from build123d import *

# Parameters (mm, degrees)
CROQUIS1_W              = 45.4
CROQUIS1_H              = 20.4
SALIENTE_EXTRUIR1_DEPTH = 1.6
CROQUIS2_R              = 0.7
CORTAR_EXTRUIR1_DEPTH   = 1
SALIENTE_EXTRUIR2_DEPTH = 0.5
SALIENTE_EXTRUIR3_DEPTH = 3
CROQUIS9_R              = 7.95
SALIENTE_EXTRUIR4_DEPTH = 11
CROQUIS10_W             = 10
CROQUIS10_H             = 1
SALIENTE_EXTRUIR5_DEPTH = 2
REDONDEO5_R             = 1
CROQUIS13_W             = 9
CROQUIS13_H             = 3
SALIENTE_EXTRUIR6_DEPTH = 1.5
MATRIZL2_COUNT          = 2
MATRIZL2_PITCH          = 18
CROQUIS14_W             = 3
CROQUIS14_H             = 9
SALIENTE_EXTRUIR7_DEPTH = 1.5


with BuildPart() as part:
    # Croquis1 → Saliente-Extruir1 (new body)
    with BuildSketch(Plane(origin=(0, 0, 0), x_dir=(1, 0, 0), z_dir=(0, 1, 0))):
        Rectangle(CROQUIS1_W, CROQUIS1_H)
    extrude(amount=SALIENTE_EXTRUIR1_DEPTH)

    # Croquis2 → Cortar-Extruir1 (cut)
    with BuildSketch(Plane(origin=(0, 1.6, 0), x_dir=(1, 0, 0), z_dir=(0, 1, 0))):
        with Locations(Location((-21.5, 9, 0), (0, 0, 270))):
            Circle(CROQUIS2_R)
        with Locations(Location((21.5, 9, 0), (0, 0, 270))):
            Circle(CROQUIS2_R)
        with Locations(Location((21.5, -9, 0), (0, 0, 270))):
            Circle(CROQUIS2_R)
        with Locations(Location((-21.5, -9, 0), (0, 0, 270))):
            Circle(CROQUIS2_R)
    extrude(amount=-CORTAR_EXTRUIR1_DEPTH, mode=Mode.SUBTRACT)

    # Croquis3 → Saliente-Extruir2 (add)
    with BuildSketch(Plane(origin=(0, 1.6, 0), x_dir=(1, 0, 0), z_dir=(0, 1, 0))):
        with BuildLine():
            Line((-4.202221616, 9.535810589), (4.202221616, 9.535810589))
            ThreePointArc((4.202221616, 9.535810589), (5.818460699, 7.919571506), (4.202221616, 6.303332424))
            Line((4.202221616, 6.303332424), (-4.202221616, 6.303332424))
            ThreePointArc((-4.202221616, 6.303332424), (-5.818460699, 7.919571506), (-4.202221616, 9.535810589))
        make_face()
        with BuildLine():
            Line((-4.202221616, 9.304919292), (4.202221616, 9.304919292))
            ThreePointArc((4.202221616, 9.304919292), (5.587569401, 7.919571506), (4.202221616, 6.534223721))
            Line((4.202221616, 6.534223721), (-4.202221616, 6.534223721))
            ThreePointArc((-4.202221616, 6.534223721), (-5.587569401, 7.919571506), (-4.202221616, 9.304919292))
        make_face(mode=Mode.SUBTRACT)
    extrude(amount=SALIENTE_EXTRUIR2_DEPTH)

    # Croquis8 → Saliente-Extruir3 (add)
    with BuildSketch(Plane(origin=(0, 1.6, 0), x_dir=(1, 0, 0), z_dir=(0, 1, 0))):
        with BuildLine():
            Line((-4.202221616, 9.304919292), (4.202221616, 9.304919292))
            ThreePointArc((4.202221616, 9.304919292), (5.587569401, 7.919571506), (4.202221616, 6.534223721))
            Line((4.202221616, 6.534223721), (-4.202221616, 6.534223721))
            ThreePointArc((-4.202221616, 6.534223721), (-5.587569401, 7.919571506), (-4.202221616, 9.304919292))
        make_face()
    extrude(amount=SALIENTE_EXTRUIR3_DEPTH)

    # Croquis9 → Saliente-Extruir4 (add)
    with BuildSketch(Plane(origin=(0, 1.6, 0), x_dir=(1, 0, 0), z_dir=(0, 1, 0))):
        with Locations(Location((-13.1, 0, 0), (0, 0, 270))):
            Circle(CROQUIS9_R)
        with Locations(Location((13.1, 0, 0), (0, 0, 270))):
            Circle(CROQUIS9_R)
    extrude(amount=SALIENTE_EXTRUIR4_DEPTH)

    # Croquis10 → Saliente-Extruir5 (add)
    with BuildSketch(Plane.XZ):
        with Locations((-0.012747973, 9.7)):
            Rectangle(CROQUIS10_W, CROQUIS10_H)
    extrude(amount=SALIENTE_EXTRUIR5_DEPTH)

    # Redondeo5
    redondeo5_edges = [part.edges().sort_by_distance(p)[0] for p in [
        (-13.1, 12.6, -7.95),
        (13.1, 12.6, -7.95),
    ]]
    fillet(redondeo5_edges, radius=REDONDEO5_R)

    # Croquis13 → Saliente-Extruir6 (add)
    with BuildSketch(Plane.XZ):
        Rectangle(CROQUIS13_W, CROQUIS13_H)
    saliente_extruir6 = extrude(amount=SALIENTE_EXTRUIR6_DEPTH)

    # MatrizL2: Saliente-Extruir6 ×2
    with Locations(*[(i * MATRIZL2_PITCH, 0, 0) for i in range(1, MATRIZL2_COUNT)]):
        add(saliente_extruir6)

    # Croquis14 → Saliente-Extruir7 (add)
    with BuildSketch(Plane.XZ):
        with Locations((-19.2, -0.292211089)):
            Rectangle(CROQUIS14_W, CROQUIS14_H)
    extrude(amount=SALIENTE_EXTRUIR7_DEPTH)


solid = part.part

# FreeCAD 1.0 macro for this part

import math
import FreeCAD as App
import Part
import Sketcher
from FreeCAD import Vector
Q = App.Units.Quantity


def edges_at(feature, points):
    """Names of the edges that pass closest to the given points."""
    edges = feature.Shape.Edges
    near = lambda p: min(range(len(edges)), key=lambda i: edges[i].distToShape(Part.Vertex(*p))[0])
    return sorted({f"Edge{near(p) + 1}" for p in points})


def add_polygon(sketch, points):
    """Adds a closed chain of lines whose ends are joined by coincident constraints."""
    first, n = sketch.GeometryCount, len(points)
    for a, b in zip(points, points[1:] + points[:1]):
        sketch.addGeometry(Part.LineSegment(App.Vector(*a, 0), App.Vector(*b, 0)), False)
    for i in range(n):
        sketch.addConstraint(Sketcher.Constraint("Coincident", first + i, 2, first + (i + 1) % n, 1))

doc = App.newDocument("Part")
params = doc.addObject("Spreadsheet::Sheet", "Params")
for row, (alias, value) in enumerate([
    ("sketch1_width", "45.4 mm"),
    ("sketch1_height", "20.4 mm"),
    ("pad1_length", "1.6 mm"),
    ("sketch2_diameter", "1.4 mm"),
    ("pocket1_length", "1 mm"),
    ("pad2_length", "0.5 mm"),
    ("pad3_length", "3 mm"),
    ("sketch5_diameter", "15.9 mm"),
    ("pad4_length", "11 mm"),
    ("sketch6_width", "10 mm"),
    ("sketch6_height", "1 mm"),
    ("pad5_length", "2 mm"),
    ("fillet_radius", "1 mm"),
    ("sketch7_width", "9 mm"),
    ("sketch7_height", "3 mm"),
    ("pad6_length", "1.5 mm"),
    ("linearpattern_pitch", "18 mm"),
    ("sketch8_width", "3 mm"),
    ("sketch8_height", "9 mm"),
    ("pad7_length", "1.5 mm"),
], start=1):
    params.set(f"A{row}", alias)
    params.set(f"B{row}", "=" + value)
    params.setAlias(f"B{row}", alias)

body = doc.addObject("PartDesign::Body", "Body")

# Sketch on XZ plane
sketch1 = body.newObject("Sketcher::SketchObject", "Sketch")
sketch1.AttachmentSupport = (doc.getObject("XZ_Plane"), [""])
sketch1.MapMode = "FlatFace"
add_polygon(sketch1, [(-23, -10), (-23, 10), (23, 10), (23, -10)])  # lines 0-3
sketch1.addConstraint([
    Sketcher.Constraint("Vertical", 0),
    Sketcher.Constraint("Horizontal", 1),
    Sketcher.Constraint("Vertical", 2),
    Sketcher.Constraint("Horizontal", 3),
    Sketcher.Constraint("Symmetric", 0, 2, 2, 2, -1, 1),
    Sketcher.Constraint("DistanceX", 1, 1, 1, 2, Q("45.4 mm")),
    Sketcher.Constraint("DistanceY", 0, 1, 0, 2, Q("20.4 mm")),
])
sketch1.setExpression("Constraints[9]", "Params.sketch1_width")
sketch1.setExpression("Constraints[10]", "Params.sketch1_height")
pad1 = body.newObject("PartDesign::Pad", "Pad")
pad1.Profile = sketch1
pad1.setExpression("Length", "Params.pad1_length")
pad1.Reversed = True

# Sketch on XZ plane
sketch2 = body.newObject("Sketcher::SketchObject", "Sketch001")
sketch2.AttachmentSupport = (doc.getObject("XZ_Plane"), [""])
sketch2.MapMode = "FlatFace"
sketch2.AttachmentOffset = App.Placement(Vector(0, 0, -1.6), App.Rotation())
sketch2.addGeometry([
    Part.Circle(Vector(-21.5, -9, 0), Vector(0, 0, 1), 0.7),
    Part.Circle(Vector(21.5, -9, 0), Vector(0, 0, 1), 0.7),
    Part.Circle(Vector(21.5, 9, 0), Vector(0, 0, 1), 0.7),
    Part.Circle(Vector(-21.5, 9, 0), Vector(0, 0, 1), 0.7),
], False)
sketch2.addConstraint([
    Sketcher.Constraint("Equal", 0, 1),
    Sketcher.Constraint("Equal", 1, 2),
    Sketcher.Constraint("Equal", 2, 3),
    Sketcher.Constraint("Symmetric", 0, 3, 2, 3, -1, 1),
    Sketcher.Constraint("Symmetric", 1, 3, 3, 3, -1, 1),
    Sketcher.Constraint("Symmetric", 0, 3, 1, 3, -2),
    Sketcher.Constraint("Diameter", 0, Q("1.4 mm")),
    Sketcher.Constraint("DistanceY", 0, 3, -1, 1, Q("9 mm")),
    Sketcher.Constraint("DistanceX", 0, 3, 1, 3, Q("43 mm")),
])
sketch2.setExpression("Constraints[6]", "Params.sketch2_diameter")
pocket1 = body.newObject("PartDesign::Pocket", "Pocket")
pocket1.Profile = sketch2
pocket1.setExpression("Length", "Params.pocket1_length")
pocket1.Reversed = True

# Sketch on XZ plane
sketch3 = body.newObject("Sketcher::SketchObject", "Sketch002")
sketch3.AttachmentSupport = (doc.getObject("XZ_Plane"), [""])
sketch3.MapMode = "FlatFace"
sketch3.AttachmentOffset = App.Placement(Vector(0, 0, -1.6), App.Rotation())
sketch3.addGeometry([
    Part.LineSegment(Vector(4.2, -9.5, 0), Vector(-4.2, -9.5, 0)),  # 0
    Part.ArcOfCircle(Part.Circle(Vector(-4.2, -7.9, 0), Vector(0, 0, 1), 1.6), math.radians(90), math.radians(270)),  # 1
    Part.LineSegment(Vector(-4.2, -6.3, 0), Vector(4.2, -6.3, 0)),  # 2
    Part.ArcOfCircle(Part.Circle(Vector(4.2, -7.9, 0), Vector(0, 0, 1), 1.6), math.radians(-90), math.radians(90)),  # 3
    Part.LineSegment(Vector(-4.2, -9.3, 0), Vector(4.2, -9.3, 0)),  # 4
    Part.ArcOfCircle(Part.Circle(Vector(4.2, -7.9, 0), Vector(0, 0, 1), 1.4), math.radians(-90), math.radians(90)),  # 5
    Part.LineSegment(Vector(4.2, -6.5, 0), Vector(-4.2, -6.5, 0)),  # 6
    Part.ArcOfCircle(Part.Circle(Vector(-4.2, -7.9, 0), Vector(0, 0, 1), 1.4), math.radians(90), math.radians(270)),  # 7
], False)
sketch3.addConstraint([
    Sketcher.Constraint("Tangent", 0, 2, 1, 2),
    Sketcher.Constraint("Tangent", 1, 1, 2, 1),
    Sketcher.Constraint("Tangent", 2, 2, 3, 2),
    Sketcher.Constraint("Tangent", 3, 1, 0, 1),
    Sketcher.Constraint("Tangent", 4, 2, 5, 1),
    Sketcher.Constraint("Tangent", 5, 2, 6, 1),
    Sketcher.Constraint("Tangent", 6, 2, 7, 1),
    Sketcher.Constraint("Tangent", 7, 2, 4, 1),
    Sketcher.Constraint("Horizontal", 0),
    Sketcher.Constraint("Horizontal", 2),
    Sketcher.Constraint("Horizontal", 4),
    Sketcher.Constraint("Horizontal", 6),
    Sketcher.Constraint("Coincident", 5, 3, 3, 3),
    Sketcher.Constraint("Vertical", 7, 3, 0, 2),
    Sketcher.Constraint("Radius", 1, Q("1.616239 mm")),
    Sketcher.Constraint("Radius", 5, Q("1.385348 mm")),
    Sketcher.Constraint("DistanceX", 0, 2, 0, 1, Q("8.404443 mm")),
    Sketcher.Constraint("DistanceX", 1, 3, -1, 1, Q("4.202222 mm")),
    Sketcher.Constraint("DistanceY", 1, 3, -1, 1, Q("7.919572 mm")),
])
pad2 = body.newObject("PartDesign::Pad", "Pad001")
pad2.Profile = sketch3
pad2.setExpression("Length", "Params.pad2_length")
pad2.Reversed = True

# Sketch on XZ plane
sketch4 = body.newObject("Sketcher::SketchObject", "Sketch003")
sketch4.AttachmentSupport = (doc.getObject("XZ_Plane"), [""])
sketch4.MapMode = "FlatFace"
sketch4.AttachmentOffset = App.Placement(Vector(0, 0, -1.6), App.Rotation())
sketch4.addGeometry([
    Part.LineSegment(Vector(4.2, -9.3, 0), Vector(-4.2, -9.3, 0)),
    Part.ArcOfCircle(Part.Circle(Vector(-4.2, -7.9, 0), Vector(0, 0, 1), 1.4), math.radians(90), math.radians(270)),
    Part.LineSegment(Vector(-4.2, -6.5, 0), Vector(4.2, -6.5, 0)),
    Part.ArcOfCircle(Part.Circle(Vector(4.2, -7.9, 0), Vector(0, 0, 1), 1.4), math.radians(-90), math.radians(90)),
], False)
sketch4.addConstraint([
    Sketcher.Constraint("Tangent", 0, 2, 1, 2),
    Sketcher.Constraint("Tangent", 1, 1, 2, 1),
    Sketcher.Constraint("Tangent", 2, 2, 3, 2),
    Sketcher.Constraint("Tangent", 3, 1, 0, 1),
    Sketcher.Constraint("Horizontal", 0),
    Sketcher.Constraint("Horizontal", 2),
    Sketcher.Constraint("Radius", 1, Q("1.385348 mm")),
    Sketcher.Constraint("DistanceX", 0, 2, 0, 1, Q("8.404443 mm")),
    Sketcher.Constraint("DistanceX", 1, 3, -1, 1, Q("4.202222 mm")),
    Sketcher.Constraint("DistanceY", 1, 3, -1, 1, Q("7.919572 mm")),
])
pad3 = body.newObject("PartDesign::Pad", "Pad002")
pad3.Profile = sketch4
pad3.setExpression("Length", "Params.pad3_length")
pad3.Reversed = True

# Sketch on XZ plane
sketch5 = body.newObject("Sketcher::SketchObject", "Sketch004")
sketch5.AttachmentSupport = (doc.getObject("XZ_Plane"), [""])
sketch5.MapMode = "FlatFace"
sketch5.AttachmentOffset = App.Placement(Vector(0, 0, -1.6), App.Rotation())
sketch5.addGeometry([
    Part.Circle(Vector(-13, 0, 0), Vector(0, 0, 1), 8),
    Part.Circle(Vector(13, 0, 0), Vector(0, 0, 1), 8),
], False)
sketch5.addConstraint([
    Sketcher.Constraint("Equal", 0, 1),
    Sketcher.Constraint("Symmetric", 0, 3, 1, 3, -1, 1),
    Sketcher.Constraint("PointOnObject", 0, 3, -1),
    Sketcher.Constraint("Diameter", 0, Q("15.9 mm")),
    Sketcher.Constraint("DistanceX", 0, 3, -1, 1, Q("13.1 mm")),
])
sketch5.setExpression("Constraints[3]", "Params.sketch5_diameter")
pad4 = body.newObject("PartDesign::Pad", "Pad003")
pad4.Profile = sketch5
pad4.setExpression("Length", "Params.pad4_length")
pad4.Reversed = True

# Sketch on XZ plane
sketch6 = body.newObject("Sketcher::SketchObject", "Sketch005")
sketch6.AttachmentSupport = (doc.getObject("XZ_Plane"), [""])
sketch6.MapMode = "FlatFace"
add_polygon(sketch6, [(-5, 10.2), (-5, 9.2), (5, 9.2), (5, 10.2)])  # lines 0-3
sketch6.addConstraint([
    Sketcher.Constraint("Vertical", 0),
    Sketcher.Constraint("Horizontal", 1),
    Sketcher.Constraint("Vertical", 2),
    Sketcher.Constraint("Horizontal", 3),
    Sketcher.Constraint("DistanceX", 1, 1, 1, 2, Q("10 mm")),
    Sketcher.Constraint("DistanceY", 0, 2, 0, 1, Q("1 mm")),
    Sketcher.Constraint("DistanceY", -1, 1, 0, 2, Q("9.2 mm")),
    Sketcher.Constraint("DistanceX", 0, 2, -1, 1, Q("5.012748 mm")),
])
sketch6.setExpression("Constraints[8]", "Params.sketch6_width")
sketch6.setExpression("Constraints[9]", "Params.sketch6_height")
pad5 = body.newObject("PartDesign::Pad", "Pad004")
pad5.Profile = sketch6
pad5.setExpression("Length", "Params.pad5_length")
doc.recompute()

fillet = body.newObject("PartDesign::Fillet", "Fillet")
fillet.Base = (pad5, edges_at(pad5, [(-13.1, 12.6, -7.95), (13.1, 12.6, -7.95)]))
fillet.setExpression("Radius", "Params.fillet_radius")

# Sketch on XZ plane
sketch7 = body.newObject("Sketcher::SketchObject", "Sketch006")
sketch7.AttachmentSupport = (doc.getObject("XZ_Plane"), [""])
sketch7.MapMode = "FlatFace"
add_polygon(sketch7, [(-4.5, 1.5), (-4.5, -1.5), (4.5, -1.5), (4.5, 1.5)])  # lines 0-3
sketch7.addConstraint([
    Sketcher.Constraint("Vertical", 0),
    Sketcher.Constraint("Horizontal", 1),
    Sketcher.Constraint("Vertical", 2),
    Sketcher.Constraint("Horizontal", 3),
    Sketcher.Constraint("Symmetric", 0, 2, 2, 2, -1, 1),
    Sketcher.Constraint("DistanceX", 1, 1, 1, 2, Q("9 mm")),
    Sketcher.Constraint("DistanceY", 0, 2, 0, 1, Q("3 mm")),
])
sketch7.setExpression("Constraints[9]", "Params.sketch7_width")
sketch7.setExpression("Constraints[10]", "Params.sketch7_height")
pad6 = body.newObject("PartDesign::Pad", "Pad005")
pad6.Profile = sketch7
pad6.setExpression("Length", "Params.pad6_length")
doc.recompute()

linearpattern = body.newObject("PartDesign::LinearPattern", "LinearPattern")
linearpattern.Originals = [pad6]
linearpattern.Direction = (doc.getObject("X_Axis"), [""])
linearpattern.Mode = "offset"
linearpattern.setExpression("Offset", "Params.linearpattern_pitch")
linearpattern.Occurrences = 2
body.Tip = linearpattern

# Sketch on XZ plane
sketch8 = body.newObject("Sketcher::SketchObject", "Sketch007")
sketch8.AttachmentSupport = (doc.getObject("XZ_Plane"), [""])
sketch8.MapMode = "FlatFace"
add_polygon(sketch8, [(-20.7, 4.2), (-20.7, -4.8), (-17.7, -4.8), (-17.7, 4.2)])  # lines 0-3
sketch8.addConstraint([
    Sketcher.Constraint("Vertical", 0),
    Sketcher.Constraint("Horizontal", 1),
    Sketcher.Constraint("Vertical", 2),
    Sketcher.Constraint("Horizontal", 3),
    Sketcher.Constraint("DistanceX", 1, 1, 1, 2, Q("3 mm")),
    Sketcher.Constraint("DistanceY", 0, 2, 0, 1, Q("9 mm")),
    Sketcher.Constraint("DistanceX", 0, 2, -1, 1, Q("20.7 mm")),
    Sketcher.Constraint("DistanceY", 0, 2, -1, 1, Q("4.792211 mm")),
])
sketch8.setExpression("Constraints[8]", "Params.sketch8_width")
sketch8.setExpression("Constraints[9]", "Params.sketch8_height")
pad7 = body.newObject("PartDesign::Pad", "Pad006")
pad7.Profile = sketch8
pad7.setExpression("Length", "Params.pad7_length")

doc.recompute()
